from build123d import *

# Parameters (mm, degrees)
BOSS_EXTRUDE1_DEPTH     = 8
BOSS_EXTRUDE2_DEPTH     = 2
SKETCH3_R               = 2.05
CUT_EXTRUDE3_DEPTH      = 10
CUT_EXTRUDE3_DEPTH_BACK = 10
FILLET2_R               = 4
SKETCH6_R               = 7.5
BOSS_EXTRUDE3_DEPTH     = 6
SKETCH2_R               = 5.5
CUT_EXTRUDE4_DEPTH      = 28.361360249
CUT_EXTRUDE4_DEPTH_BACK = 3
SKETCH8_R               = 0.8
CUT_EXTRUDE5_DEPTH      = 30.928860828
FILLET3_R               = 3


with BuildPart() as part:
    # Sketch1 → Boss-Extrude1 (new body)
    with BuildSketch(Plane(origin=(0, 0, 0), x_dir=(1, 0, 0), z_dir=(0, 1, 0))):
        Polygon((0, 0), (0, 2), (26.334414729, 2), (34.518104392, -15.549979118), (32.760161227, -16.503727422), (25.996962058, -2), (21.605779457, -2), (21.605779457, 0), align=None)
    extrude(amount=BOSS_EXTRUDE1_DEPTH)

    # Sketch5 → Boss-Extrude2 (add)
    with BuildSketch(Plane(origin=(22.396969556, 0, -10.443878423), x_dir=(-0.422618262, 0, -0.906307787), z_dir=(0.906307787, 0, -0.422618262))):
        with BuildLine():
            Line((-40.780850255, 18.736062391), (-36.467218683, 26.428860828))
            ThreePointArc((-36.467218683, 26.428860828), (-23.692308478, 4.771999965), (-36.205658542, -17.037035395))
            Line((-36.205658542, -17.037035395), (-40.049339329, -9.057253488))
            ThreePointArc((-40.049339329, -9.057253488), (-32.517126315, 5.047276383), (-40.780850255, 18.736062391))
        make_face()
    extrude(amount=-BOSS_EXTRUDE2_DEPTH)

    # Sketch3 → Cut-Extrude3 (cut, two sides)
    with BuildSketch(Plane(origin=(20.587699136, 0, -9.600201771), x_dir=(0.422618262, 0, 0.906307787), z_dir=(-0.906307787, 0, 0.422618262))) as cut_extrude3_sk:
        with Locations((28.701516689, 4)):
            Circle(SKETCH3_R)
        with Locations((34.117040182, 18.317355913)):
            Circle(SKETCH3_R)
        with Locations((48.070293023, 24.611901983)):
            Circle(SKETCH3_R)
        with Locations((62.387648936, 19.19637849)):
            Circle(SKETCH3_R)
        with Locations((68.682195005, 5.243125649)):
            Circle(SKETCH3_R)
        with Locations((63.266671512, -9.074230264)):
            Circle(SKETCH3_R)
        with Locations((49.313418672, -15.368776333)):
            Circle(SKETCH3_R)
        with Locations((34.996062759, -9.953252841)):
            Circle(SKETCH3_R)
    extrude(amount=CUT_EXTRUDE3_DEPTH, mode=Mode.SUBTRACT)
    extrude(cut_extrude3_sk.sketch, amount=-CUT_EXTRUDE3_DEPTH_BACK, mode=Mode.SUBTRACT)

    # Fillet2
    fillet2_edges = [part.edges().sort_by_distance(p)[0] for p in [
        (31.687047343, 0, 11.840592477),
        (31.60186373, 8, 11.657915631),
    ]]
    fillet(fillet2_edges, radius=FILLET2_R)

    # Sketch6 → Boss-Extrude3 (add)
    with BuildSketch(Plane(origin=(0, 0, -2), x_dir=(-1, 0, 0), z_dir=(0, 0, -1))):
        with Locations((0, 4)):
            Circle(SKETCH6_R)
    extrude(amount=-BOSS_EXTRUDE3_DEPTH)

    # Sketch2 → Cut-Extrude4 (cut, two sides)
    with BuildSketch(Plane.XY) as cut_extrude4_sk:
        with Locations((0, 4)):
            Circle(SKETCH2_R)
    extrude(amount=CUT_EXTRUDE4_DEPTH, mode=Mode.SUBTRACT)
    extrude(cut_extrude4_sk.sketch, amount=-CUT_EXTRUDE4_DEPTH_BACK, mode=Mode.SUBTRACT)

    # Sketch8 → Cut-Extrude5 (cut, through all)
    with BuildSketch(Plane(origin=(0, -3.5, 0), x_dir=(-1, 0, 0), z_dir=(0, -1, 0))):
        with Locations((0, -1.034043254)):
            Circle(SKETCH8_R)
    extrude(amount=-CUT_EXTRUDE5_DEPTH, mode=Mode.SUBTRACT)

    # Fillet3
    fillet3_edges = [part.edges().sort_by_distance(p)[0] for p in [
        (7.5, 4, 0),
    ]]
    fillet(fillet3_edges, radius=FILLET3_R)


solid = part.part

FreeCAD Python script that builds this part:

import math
import FreeCAD as App
import Part
import Sketcher
Q = App.Units.Quantity


def edges_at(feature, points):
    """Names of the edges that pass closest to the given points."""
    edges = feature.Shape.Edges
    near = lambda p: min(range(len(edges)), key=lambda i: edges[i].distToShape(Part.Vertex(*p))[0])
    return sorted({f"Edge{near(p) + 1}" for p in points})

doc = App.newDocument("Part")
body = doc.addObject("PartDesign::Body", "Body")

sketch1 = body.newObject("Sketcher::SketchObject", "Sketch")
sketch1.AttachmentSupport = (doc.getObject("XZ_Plane"), [""])
sketch1.MapMode = "FlatFace"
sketch1.addGeometry([
    Part.LineSegment(App.Vector(0, -2, 0), App.Vector(0, 0, 0)),
    Part.LineSegment(App.Vector(0, 0, 0), App.Vector(21.605779, 0, 0)),
    Part.LineSegment(App.Vector(21.605779, 0, 0), App.Vector(21.605779, 2, 0)),
    Part.LineSegment(App.Vector(21.605779, 2, 0), App.Vector(25.996962, 2, 0)),
    Part.LineSegment(App.Vector(25.996962, 2, 0), App.Vector(32.760161, 16.503727, 0)),
    Part.LineSegment(App.Vector(32.760161, 16.503727, 0), App.Vector(34.518104, 15.549979, 0)),
    Part.LineSegment(App.Vector(34.518104, 15.549979, 0), App.Vector(26.334415, -2, 0)),
    Part.LineSegment(App.Vector(26.334415, -2, 0), App.Vector(0, -2, 0)),
], False)
sketch1.addConstraint([
    Sketcher.Constraint("Coincident", 0, 2, 1, 1),
    Sketcher.Constraint("Coincident", 1, 2, 2, 1),
    Sketcher.Constraint("Coincident", 2, 2, 3, 1),
    Sketcher.Constraint("Coincident", 3, 2, 4, 1),
    Sketcher.Constraint("Coincident", 4, 2, 5, 1),
    Sketcher.Constraint("Coincident", 5, 2, 6, 1),
    Sketcher.Constraint("Coincident", 6, 2, 7, 1),
    Sketcher.Constraint("Coincident", 7, 2, 0, 1),
    Sketcher.Constraint("Vertical", 0),
    Sketcher.Constraint("Horizontal", 1),
    Sketcher.Constraint("Vertical", 2),
    Sketcher.Constraint("Horizontal", 3),
    Sketcher.Constraint("Horizontal", 7),
    Sketcher.Constraint("Coincident", 0, 2, -1, 1),
    Sketcher.Constraint("Parallel", 4, 6),
    Sketcher.Constraint("Equal", 0, 2),
    Sketcher.Constraint("DistanceY", 0, 1, 0, 2, 2.0),
    Sketcher.Constraint("Angle", 4, Q("65 deg")),
    Sketcher.Constraint("Distance", 5, 2.0),
    Sketcher.Constraint("DistanceX", 1, 1, 1, 2, 21.605779),
    Sketcher.Constraint("DistanceX", 3, 2, 4, 2, 6.763199),
    Sketcher.Constraint("Distance", 6, 19.364259),
    Sketcher.Constraint("DistanceX", 3, 1, 3, 2, 4.391183),
])
pad1 = body.newObject("PartDesign::Pad", "Pad")
pad1.Profile = sketch1
pad1.Length = 8
pad1.Reversed = True

sketch2 = body.newObject("Sketcher::SketchObject", "Sketch001")
sketch2.Placement = App.Placement(App.Vector(22.39697, 0, -10.443878), App.Rotation(App.Vector(-0.422618262, 0, -0.906307787), App.Vector(0, 1, 0), App.Vector(0.906307787, 0, -0.422618262), "ZXY"))
sketch2.addGeometry([
    Part.LineSegment(App.Vector(-36.467219, 26.428861, 0), App.Vector(-40.78085, 18.736062, 0)),
    Part.ArcOfCircle(Part.Circle(App.Vector(-48.691856, 4.621563, 0), App.Vector(0, 0, 1), 16.180331), math.radians(-57.714583), math.radians(60.729899)),
    Part.LineSegment(App.Vector(-40.049339, -9.057253, 0), App.Vector(-36.205659, -17.037035, 0)),
    Part.ArcOfCircle(Part.Circle(App.Vector(-48.691856, 4.621563, 0), App.Vector(0, 0, 1), 25), math.radians(-60.03652), math.radians(60.726078)),
], False)
sketch2.addConstraint([
    Sketcher.Constraint("Coincident", 0, 2, 1, 2),
    Sketcher.Constraint("Coincident", 1, 1, 2, 1),
    Sketcher.Constraint("Coincident", 2, 2, 3, 1),
    Sketcher.Constraint("Coincident", 3, 2, 0, 1),
    Sketcher.Constraint("Coincident", 3, 3, 1, 3),
    Sketcher.Constraint("Radius", 3, 25.0),
    Sketcher.Constraint("Radius", 1, 16.180331),
    Sketcher.Constraint("DistanceY", 3, 3, 0, 2, 14.1145),
    Sketcher.Constraint("DistanceY", 2, 2, 3, 3, 21.658598),
    Sketcher.Constraint("DistanceY", 0, 2, 3, 2, 7.692798),
    Sketcher.Constraint("DistanceX", 0, 2, -1, 1, 40.78085),
    Sketcher.Constraint("DistanceX", 1, 1, -1, 1, 40.049339),
    Sketcher.Constraint("DistanceY", -1, 1, 3, 2, 26.428861),
])
pad2 = body.newObject("PartDesign::Pad", "Pad001")
pad2.Profile = sketch2
pad2.Length = 2
pad2.Reversed = True

sketch3 = body.newObject("Sketcher::SketchObject", "Sketch002")
sketch3.Placement = App.Placement(App.Vector(20.587699, 0, -9.600202), App.Rotation(App.Vector(0.422618262, 0, 0.906307787), App.Vector(0, 1, 0), App.Vector(-0.906307787, 0, 0.422618262), "ZXY"))
sketch3.addGeometry([
    Part.Circle(App.Vector(28.701517, 4, 0), App.Vector(0, 0, 1), 2.05),
    Part.Circle(App.Vector(34.11704, 18.317356, 0), App.Vector(0, 0, 1), 2.05),
    Part.Circle(App.Vector(48.070293, 24.611902, 0), App.Vector(0, 0, 1), 2.05),
    Part.Circle(App.Vector(62.387649, 19.196378, 0), App.Vector(0, 0, 1), 2.05),
    Part.Circle(App.Vector(68.682195, 5.243126, 0), App.Vector(0, 0, 1), 2.05),
    Part.Circle(App.Vector(63.266672, -9.07423, 0), App.Vector(0, 0, 1), 2.05),
    Part.Circle(App.Vector(49.313419, -15.368776, 0), App.Vector(0, 0, 1), 2.05),
    Part.Circle(App.Vector(34.996063, -9.953253, 0), App.Vector(0, 0, 1), 2.05),
], False)
sketch3.addConstraint([
    Sketcher.Constraint("Equal", 0, 1),
    Sketcher.Constraint("Equal", 1, 2),
    Sketcher.Constraint("Equal", 2, 3),
    Sketcher.Constraint("Equal", 3, 4),
    Sketcher.Constraint("Equal", 4, 5),
    Sketcher.Constraint("Equal", 5, 6),
    Sketcher.Constraint("Equal", 6, 7),
    Sketcher.Constraint("Diameter", 0, 4.1),
    Sketcher.Constraint("DistanceY", -1, 1, 0, 3, 4.0),
    Sketcher.Constraint("DistanceY", -1, 1, 2, 3, 24.611902),
    Sketcher.Constraint("DistanceX", 2, 3, 4, 3, 20.611902),
    Sketcher.Constraint("DistanceY", 6, 3, 4, 3, 20.611902),
    Sketcher.Constraint("DistanceX", 0, 3, 6, 3, 20.611902),
    Sketcher.Constraint("DistanceX", -1, 1, 1, 3, 34.11704),
    Sketcher.Constraint("DistanceX", -1, 1, 3, 3, 62.387649),
    Sketcher.Constraint("DistanceY", -1, 1, 3, 3, 19.196378),
    Sketcher.Constraint("DistanceX", -1, 1, 5, 3, 63.266672),
    Sketcher.Constraint("DistanceY", 5, 3, -1, 1, 9.07423),
    Sketcher.Constraint("DistanceX", -1, 1, 6, 3, 49.313419),
    Sketcher.Constraint("DistanceY", 4, 3, 1, 3, 13.07423),
    Sketcher.Constraint("DistanceX", 0, 3, 4, 3, 39.980678),
    Sketcher.Constraint("DistanceX", 7, 3, 5, 3, 28.270609),
    Sketcher.Constraint("DistanceY", 7, 3, 1, 3, 28.270609),
    Sketcher.Constraint("DistanceY", -1, 1, 1, 3, 18.317356),
])
pocket1 = body.newObject("PartDesign::Pocket", "Pocket")
pocket1.Profile = sketch3
pocket1.Type = "ThroughAll"
pocket1.Midplane = True
doc.recompute()

fillet = body.newObject("PartDesign::Fillet", "Fillet")
fillet.Base = (pocket1, edges_at(pocket1, [(31.687, 0, 11.841), (31.602, 8, 11.658)]))
fillet.Radius = 4

sketch4 = body.newObject("Sketcher::SketchObject", "Sketch003")
sketch4.AttachmentSupport = (doc.getObject("XY_Plane"), [""])
sketch4.MapMode = "FlatFace"
sketch4.AttachmentOffset = App.Placement(App.Vector(0, 0, -2), App.Rotation())
sketch4.addGeometry(Part.Circle(App.Vector(0, 4, 0), App.Vector(0, 0, 1), 7.5), False)
sketch4.addConstraint([
    Sketcher.Constraint("PointOnObject", 0, 3, -2),
    Sketcher.Constraint("Diameter", 0, 15.0),
    Sketcher.Constraint("DistanceY", -1, 1, 0, 3, 4.0),
])
pad3 = body.newObject("PartDesign::Pad", "Pad002")
pad3.Profile = sketch4
pad3.Length = 6

sketch5 = body.newObject("Sketcher::SketchObject", "Sketch004")
sketch5.AttachmentSupport = (doc.getObject("XY_Plane"), [""])
sketch5.MapMode = "FlatFace"
sketch5.addGeometry(Part.Circle(App.Vector(0, 4, 0), App.Vector(0, 0, 1), 5.5), False)
sketch5.addConstraint([
    Sketcher.Constraint("PointOnObject", 0, 3, -2),
    Sketcher.Constraint("Diameter", 0, 11.0),
    Sketcher.Constraint("DistanceY", -1, 1, 0, 3, 4.0),
])
pocket2 = body.newObject("PartDesign::Pocket", "Pocket001")
pocket2.Profile = sketch5
pocket2.Type = "ThroughAll"
pocket2.Midplane = True

sketch6 = body.newObject("Sketcher::SketchObject", "Sketch005")
sketch6.AttachmentSupport = (doc.getObject("XZ_Plane"), [""])
sketch6.MapMode = "FlatFace"
sketch6.AttachmentOffset = App.Placement(App.Vector(0, 0, 3.5), App.Rotation())
sketch6.addGeometry(Part.Circle(App.Vector(0, 1.034043, 0), App.Vector(0, 0, 1), 0.8), False)
sketch6.addConstraint([
    Sketcher.Constraint("PointOnObject", 0, 3, -2),
    Sketcher.Constraint("Diameter", 0, 1.6),
    Sketcher.Constraint("DistanceY", -1, 1, 0, 3, 1.034043),
])
pocket3 = body.newObject("PartDesign::Pocket", "Pocket002")
pocket3.Profile = sketch6
pocket3.Type = "ThroughAll"
doc.recompute()

fillet2 = body.newObject("PartDesign::Fillet", "Fillet001")
fillet2.Base = (pocket3, edges_at(pocket3, [(7.5, 4, 0)]))
fillet2.Radius = 3

doc.recompute()
